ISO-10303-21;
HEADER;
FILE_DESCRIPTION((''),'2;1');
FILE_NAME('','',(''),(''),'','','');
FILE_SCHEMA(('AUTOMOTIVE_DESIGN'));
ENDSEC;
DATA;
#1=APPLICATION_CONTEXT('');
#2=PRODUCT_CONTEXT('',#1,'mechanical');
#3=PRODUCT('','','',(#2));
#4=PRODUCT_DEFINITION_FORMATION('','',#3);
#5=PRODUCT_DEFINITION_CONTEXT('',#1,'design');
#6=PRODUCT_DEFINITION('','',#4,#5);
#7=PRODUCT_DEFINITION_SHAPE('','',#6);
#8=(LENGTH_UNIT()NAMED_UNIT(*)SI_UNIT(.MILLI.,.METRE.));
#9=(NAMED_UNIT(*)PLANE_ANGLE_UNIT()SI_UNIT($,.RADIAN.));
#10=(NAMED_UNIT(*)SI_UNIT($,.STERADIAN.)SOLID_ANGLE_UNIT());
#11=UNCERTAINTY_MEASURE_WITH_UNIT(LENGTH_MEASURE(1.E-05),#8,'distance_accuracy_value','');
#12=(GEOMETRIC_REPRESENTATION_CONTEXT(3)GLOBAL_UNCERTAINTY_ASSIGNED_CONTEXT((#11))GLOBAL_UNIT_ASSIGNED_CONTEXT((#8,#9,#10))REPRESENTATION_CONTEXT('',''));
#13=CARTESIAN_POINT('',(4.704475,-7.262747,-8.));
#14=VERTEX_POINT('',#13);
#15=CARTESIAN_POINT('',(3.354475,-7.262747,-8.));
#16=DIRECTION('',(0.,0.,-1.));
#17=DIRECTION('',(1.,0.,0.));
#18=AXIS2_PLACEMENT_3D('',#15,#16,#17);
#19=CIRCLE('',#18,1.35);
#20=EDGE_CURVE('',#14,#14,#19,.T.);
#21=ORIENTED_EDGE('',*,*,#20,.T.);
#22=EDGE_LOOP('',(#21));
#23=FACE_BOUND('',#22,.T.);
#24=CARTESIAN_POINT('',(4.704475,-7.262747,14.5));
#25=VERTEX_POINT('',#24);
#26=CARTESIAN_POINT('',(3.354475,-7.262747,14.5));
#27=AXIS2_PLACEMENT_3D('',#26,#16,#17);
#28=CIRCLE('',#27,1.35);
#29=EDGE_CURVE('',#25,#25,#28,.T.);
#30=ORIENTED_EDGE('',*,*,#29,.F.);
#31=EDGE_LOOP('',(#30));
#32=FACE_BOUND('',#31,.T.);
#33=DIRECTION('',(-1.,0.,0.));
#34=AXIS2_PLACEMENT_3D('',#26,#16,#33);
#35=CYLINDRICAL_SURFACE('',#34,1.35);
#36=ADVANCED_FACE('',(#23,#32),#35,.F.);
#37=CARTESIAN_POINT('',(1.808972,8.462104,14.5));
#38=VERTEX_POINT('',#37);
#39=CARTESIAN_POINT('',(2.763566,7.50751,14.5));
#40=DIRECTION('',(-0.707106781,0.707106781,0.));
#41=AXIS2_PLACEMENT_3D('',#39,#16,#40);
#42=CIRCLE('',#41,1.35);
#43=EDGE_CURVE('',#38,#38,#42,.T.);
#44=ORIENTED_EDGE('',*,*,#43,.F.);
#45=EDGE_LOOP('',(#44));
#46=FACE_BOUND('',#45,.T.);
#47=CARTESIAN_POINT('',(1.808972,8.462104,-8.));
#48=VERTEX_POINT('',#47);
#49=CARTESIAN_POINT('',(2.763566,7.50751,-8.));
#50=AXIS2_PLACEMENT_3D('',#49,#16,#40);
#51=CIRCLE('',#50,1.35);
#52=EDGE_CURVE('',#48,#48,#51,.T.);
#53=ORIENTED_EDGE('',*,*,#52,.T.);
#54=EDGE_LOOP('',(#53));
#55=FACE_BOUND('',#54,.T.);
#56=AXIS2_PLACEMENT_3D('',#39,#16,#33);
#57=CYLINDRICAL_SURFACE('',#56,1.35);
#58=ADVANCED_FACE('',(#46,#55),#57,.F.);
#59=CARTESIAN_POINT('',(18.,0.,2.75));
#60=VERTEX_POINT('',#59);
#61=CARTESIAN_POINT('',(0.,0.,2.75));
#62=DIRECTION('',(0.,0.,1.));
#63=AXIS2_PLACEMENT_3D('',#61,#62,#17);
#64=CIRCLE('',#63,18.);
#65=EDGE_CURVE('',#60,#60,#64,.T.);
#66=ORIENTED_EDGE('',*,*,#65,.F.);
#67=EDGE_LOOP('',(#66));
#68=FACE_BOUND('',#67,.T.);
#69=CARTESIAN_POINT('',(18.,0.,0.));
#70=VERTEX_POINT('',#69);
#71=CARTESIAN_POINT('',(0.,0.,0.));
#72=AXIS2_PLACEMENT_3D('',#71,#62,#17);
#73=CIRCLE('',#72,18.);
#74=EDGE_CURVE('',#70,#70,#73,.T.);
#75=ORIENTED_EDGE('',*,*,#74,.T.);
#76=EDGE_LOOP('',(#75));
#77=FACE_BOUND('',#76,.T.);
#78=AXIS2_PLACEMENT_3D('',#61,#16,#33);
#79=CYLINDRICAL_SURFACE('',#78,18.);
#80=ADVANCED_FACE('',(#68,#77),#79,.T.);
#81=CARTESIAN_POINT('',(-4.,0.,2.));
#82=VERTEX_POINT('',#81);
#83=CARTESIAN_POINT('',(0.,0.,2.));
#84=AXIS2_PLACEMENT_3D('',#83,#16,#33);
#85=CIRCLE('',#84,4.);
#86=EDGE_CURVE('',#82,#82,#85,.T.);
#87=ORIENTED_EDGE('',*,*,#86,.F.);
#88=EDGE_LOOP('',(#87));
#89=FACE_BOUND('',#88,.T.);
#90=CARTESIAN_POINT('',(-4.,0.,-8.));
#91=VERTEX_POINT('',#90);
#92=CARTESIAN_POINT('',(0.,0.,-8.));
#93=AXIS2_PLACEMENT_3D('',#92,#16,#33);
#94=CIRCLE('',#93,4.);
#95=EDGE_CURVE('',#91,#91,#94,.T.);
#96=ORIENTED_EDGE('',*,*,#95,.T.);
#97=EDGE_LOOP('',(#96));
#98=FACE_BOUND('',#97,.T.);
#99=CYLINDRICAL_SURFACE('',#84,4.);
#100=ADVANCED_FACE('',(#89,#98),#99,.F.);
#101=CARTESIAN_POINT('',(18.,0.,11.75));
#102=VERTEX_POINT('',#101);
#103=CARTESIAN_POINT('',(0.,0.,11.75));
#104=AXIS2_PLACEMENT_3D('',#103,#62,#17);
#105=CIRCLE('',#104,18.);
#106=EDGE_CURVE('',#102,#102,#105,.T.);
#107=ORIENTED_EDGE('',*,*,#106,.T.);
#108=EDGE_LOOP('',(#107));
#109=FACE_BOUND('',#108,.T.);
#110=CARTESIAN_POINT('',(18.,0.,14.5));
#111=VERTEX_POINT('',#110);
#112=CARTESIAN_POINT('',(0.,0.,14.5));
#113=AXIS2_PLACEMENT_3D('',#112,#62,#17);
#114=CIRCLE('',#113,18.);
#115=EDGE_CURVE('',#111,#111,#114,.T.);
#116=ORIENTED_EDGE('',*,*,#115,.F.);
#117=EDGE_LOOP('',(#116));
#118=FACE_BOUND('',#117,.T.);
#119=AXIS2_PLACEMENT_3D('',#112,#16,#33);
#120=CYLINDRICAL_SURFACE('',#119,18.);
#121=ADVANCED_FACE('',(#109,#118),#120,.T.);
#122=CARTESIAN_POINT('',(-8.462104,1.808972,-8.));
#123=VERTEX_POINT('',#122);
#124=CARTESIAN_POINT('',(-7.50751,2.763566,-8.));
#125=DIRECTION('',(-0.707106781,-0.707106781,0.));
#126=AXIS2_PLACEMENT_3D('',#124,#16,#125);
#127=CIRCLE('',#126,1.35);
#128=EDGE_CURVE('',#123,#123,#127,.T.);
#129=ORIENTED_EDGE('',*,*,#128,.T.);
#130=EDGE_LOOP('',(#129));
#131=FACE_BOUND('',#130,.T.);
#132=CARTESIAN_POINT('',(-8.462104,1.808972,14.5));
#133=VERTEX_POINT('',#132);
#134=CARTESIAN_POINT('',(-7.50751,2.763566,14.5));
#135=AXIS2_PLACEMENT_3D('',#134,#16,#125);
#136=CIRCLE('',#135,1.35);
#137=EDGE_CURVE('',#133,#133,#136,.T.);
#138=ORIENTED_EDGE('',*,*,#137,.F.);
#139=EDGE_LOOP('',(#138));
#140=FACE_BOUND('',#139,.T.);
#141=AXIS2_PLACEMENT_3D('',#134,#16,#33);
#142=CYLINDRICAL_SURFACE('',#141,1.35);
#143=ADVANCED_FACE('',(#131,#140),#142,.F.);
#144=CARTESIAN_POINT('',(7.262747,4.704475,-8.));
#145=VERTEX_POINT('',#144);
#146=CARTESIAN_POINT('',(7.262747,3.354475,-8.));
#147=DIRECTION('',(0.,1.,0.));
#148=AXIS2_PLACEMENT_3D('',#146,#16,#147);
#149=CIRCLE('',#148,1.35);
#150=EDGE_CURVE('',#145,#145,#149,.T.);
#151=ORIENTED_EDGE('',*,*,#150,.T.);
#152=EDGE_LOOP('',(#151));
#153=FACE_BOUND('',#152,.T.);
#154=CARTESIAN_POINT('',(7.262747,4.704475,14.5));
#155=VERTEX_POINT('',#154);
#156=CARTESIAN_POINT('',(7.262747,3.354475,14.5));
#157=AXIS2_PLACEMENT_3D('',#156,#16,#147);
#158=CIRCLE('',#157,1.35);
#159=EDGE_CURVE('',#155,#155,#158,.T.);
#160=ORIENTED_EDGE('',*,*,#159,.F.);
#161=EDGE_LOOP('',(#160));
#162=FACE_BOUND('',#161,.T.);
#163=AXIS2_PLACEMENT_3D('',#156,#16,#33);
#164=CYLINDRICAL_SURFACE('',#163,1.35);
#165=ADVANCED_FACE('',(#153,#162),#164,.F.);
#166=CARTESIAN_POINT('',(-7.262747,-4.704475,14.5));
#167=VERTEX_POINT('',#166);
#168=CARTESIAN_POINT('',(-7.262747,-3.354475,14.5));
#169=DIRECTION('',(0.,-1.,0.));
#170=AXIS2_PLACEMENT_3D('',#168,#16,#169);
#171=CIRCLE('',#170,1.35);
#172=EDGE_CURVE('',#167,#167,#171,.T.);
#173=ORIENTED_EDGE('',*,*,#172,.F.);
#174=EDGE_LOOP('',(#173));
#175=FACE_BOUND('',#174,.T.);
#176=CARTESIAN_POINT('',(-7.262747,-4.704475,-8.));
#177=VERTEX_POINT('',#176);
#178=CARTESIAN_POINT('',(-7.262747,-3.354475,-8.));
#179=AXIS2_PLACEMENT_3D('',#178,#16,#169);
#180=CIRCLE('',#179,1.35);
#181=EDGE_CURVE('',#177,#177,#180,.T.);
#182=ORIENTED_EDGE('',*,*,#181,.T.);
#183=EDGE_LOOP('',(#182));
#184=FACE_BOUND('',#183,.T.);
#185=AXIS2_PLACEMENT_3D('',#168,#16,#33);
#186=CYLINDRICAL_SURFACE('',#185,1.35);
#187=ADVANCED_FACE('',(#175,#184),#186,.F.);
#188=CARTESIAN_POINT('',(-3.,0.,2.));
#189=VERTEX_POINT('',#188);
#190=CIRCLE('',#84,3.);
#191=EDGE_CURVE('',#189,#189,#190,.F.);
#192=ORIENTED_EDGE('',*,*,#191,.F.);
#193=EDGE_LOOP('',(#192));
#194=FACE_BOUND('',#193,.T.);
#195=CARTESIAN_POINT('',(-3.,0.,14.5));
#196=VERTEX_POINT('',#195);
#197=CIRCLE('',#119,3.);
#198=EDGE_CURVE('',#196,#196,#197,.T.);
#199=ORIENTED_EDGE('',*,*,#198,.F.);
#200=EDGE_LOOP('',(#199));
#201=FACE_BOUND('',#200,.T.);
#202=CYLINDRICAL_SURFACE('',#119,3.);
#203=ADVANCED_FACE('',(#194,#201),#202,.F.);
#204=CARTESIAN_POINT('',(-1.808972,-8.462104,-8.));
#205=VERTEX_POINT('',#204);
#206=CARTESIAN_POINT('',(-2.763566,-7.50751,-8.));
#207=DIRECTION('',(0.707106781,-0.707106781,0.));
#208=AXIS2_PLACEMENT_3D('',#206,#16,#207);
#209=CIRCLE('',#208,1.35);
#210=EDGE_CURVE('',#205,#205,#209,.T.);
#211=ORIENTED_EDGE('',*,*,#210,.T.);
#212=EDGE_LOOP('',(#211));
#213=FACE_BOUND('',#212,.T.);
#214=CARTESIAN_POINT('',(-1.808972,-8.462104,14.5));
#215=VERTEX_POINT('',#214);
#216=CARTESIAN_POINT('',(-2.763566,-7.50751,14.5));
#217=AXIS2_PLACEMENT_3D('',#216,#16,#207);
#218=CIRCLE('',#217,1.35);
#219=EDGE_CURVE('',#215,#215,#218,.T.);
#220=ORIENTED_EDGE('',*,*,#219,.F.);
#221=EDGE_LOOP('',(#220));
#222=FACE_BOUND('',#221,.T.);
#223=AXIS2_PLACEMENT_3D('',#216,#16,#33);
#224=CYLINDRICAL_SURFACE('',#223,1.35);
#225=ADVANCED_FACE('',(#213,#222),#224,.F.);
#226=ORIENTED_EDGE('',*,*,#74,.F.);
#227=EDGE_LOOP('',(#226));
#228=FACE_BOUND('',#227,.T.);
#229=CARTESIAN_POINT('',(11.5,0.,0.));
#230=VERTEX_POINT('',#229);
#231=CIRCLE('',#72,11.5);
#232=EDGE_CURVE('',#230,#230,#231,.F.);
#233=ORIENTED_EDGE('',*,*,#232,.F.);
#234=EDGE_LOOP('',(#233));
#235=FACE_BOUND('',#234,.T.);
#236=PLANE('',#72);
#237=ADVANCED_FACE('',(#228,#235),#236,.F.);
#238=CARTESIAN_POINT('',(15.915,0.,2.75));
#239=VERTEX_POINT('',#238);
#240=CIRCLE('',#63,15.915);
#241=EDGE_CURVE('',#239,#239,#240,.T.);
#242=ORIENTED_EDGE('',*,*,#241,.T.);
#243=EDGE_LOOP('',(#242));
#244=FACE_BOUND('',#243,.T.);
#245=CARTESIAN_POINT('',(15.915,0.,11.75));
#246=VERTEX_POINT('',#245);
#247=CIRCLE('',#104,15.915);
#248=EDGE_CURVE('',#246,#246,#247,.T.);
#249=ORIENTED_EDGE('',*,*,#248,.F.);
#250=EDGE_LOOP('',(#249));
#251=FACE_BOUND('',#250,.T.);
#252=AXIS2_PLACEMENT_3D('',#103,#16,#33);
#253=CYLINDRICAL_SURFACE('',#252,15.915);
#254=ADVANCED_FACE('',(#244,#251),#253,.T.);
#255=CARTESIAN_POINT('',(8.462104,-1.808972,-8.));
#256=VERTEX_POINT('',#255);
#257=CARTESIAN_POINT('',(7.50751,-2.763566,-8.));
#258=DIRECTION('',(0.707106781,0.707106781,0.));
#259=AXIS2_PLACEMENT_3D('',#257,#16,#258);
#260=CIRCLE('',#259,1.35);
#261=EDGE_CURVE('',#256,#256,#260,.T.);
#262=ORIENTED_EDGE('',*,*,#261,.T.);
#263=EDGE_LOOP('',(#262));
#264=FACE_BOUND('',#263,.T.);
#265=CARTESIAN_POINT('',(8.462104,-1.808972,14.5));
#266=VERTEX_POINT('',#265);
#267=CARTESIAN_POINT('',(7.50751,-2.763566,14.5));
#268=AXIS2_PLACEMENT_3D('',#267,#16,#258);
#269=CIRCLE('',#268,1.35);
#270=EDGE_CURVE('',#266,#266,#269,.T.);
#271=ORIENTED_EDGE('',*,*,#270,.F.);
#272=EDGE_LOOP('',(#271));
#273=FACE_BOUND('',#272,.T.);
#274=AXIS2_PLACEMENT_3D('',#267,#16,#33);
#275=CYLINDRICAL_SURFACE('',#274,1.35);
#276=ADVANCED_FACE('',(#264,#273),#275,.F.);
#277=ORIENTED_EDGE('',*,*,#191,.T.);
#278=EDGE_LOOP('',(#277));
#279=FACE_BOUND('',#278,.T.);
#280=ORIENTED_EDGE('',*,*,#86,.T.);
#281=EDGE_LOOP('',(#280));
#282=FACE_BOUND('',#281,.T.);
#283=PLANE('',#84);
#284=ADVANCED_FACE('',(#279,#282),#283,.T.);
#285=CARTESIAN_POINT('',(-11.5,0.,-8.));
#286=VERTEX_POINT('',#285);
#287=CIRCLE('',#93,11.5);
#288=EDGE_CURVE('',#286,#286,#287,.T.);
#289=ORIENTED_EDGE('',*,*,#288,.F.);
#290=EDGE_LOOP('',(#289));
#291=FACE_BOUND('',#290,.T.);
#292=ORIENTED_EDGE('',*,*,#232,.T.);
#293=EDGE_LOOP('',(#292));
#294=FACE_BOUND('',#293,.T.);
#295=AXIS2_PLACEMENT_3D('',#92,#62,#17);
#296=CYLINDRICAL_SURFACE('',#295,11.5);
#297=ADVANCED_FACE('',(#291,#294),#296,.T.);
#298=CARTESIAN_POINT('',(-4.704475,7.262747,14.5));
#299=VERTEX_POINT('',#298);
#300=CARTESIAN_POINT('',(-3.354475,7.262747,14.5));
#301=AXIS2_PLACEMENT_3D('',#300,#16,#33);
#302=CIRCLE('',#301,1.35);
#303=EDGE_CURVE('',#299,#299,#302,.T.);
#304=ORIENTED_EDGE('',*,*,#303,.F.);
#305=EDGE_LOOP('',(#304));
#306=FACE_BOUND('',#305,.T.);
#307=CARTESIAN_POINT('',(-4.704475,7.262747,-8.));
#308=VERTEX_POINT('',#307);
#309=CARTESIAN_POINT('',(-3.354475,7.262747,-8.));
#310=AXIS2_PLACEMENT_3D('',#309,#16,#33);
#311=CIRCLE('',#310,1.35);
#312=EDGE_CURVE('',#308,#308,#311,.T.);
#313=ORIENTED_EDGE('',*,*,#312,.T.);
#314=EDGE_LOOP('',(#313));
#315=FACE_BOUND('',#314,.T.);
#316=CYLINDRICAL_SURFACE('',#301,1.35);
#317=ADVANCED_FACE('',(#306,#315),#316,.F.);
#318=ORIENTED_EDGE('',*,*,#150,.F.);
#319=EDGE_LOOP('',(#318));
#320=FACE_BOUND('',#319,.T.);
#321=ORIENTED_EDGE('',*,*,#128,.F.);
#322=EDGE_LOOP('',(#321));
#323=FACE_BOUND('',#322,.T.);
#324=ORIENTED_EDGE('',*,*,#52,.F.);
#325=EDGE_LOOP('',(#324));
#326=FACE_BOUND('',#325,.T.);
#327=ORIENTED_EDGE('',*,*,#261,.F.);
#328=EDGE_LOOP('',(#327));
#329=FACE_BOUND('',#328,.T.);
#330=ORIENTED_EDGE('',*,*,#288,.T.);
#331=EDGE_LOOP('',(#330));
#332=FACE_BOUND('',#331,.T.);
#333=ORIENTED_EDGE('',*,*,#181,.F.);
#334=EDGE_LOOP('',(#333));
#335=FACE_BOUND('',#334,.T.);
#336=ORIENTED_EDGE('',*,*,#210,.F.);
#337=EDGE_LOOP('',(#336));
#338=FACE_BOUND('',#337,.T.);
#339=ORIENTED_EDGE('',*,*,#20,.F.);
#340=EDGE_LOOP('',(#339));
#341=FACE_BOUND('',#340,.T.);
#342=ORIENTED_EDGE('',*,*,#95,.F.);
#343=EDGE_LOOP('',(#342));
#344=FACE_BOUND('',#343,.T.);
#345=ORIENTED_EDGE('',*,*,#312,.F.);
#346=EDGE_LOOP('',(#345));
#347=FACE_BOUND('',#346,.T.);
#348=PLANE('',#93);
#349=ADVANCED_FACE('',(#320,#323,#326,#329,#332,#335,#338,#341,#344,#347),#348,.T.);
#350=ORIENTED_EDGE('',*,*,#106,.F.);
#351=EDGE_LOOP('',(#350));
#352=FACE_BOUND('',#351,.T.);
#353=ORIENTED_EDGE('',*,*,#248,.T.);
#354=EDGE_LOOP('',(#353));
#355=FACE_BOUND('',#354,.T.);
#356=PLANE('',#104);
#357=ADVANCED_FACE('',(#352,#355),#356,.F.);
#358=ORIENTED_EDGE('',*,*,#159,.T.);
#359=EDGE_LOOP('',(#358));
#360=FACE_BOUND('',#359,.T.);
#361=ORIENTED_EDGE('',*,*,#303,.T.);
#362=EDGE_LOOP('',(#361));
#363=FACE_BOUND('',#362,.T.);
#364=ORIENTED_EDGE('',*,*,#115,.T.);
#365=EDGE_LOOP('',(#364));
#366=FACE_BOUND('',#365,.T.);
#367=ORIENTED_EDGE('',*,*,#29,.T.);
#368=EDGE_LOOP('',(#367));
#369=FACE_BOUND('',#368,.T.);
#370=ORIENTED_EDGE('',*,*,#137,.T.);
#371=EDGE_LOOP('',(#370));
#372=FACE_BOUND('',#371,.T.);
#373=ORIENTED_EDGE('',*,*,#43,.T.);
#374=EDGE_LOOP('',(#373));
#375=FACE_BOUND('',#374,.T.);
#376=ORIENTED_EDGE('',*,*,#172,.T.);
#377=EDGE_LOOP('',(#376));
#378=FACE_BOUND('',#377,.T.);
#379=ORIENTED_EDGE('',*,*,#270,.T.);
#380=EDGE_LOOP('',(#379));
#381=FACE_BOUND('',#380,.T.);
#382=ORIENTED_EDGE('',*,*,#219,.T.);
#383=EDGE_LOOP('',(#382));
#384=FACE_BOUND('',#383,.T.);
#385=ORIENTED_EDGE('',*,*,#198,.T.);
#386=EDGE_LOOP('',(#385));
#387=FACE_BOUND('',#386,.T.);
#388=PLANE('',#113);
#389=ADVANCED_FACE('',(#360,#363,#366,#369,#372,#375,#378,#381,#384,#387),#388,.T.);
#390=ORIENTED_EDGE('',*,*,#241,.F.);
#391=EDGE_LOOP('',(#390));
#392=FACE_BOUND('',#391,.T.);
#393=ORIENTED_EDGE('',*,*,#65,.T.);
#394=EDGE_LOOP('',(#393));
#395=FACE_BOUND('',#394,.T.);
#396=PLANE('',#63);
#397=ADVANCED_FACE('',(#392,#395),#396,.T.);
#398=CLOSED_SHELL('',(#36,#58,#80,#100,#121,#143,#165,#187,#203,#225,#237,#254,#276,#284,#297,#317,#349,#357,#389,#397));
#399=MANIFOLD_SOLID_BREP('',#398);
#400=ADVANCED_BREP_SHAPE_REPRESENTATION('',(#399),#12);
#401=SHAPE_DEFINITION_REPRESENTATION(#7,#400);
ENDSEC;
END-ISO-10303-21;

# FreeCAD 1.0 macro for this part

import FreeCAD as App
import Part
import Sketcher

V = App.Vector

doc = App.newDocument("Part")
params = doc.addObject("Spreadsheet::Sheet", "Params")
for row, (alias, value) in enumerate([
    ("sketch1_diameter", "36 mm"),
    ("pad1_length", "2.75 mm"),
    ("sketch2_diameter", "31.83 mm"),
    ("pad2_length", "9 mm"),
    ("sketch3_diameter", "36 mm"),
    ("pad3_length", "2.75 mm"),
    ("sketch4_diameter", "23 mm"),
    ("pad4_length", "8 mm"),
    ("sketch5_diameter", "6 mm"),
    ("sketch6_diameter", "8 mm"),
    ("pocket2_length", "10 mm"),
    ("sketch7_diameter", "2.7 mm"),
], start=1):
    params.set(f"A{row}", alias)
    params.set(f"B{row}", "=" + value)
    params.setAlias(f"B{row}", alias)

body = doc.addObject("PartDesign::Body", "Body")

# Sketch on XY plane
sketch1 = body.newObject("Sketcher::SketchObject", "Sketch")
sketch1.AttachmentSupport = (doc.getObject("XY_Plane"), [""])
sketch1.MapMode = "FlatFace"
sketch1.addGeometry(Part.Circle(V(0, 0, 0), V(0, 0, 1), 18), False)
sketch1.addConstraint([
    Sketcher.Constraint("Coincident", 0, 3, -1, 1),
    Sketcher.Constraint("Diameter", 0, 36.0),
])
sketch1.setExpression("Constraints[1]", "Params.sketch1_diameter")
pad1 = body.newObject("PartDesign::Pad", "Pad")
pad1.Profile = sketch1
pad1.setExpression("Length", "Params.pad1_length")

# Sketch on XY plane
sketch2 = body.newObject("Sketcher::SketchObject", "Sketch001")
sketch2.AttachmentSupport = (doc.getObject("XY_Plane"), [""])
sketch2.MapMode = "FlatFace"
sketch2.AttachmentOffset = App.Placement(V(0, 0, 2.75), App.Rotation())
sketch2.addGeometry(Part.Circle(V(0, 0, 0), V(0, 0, 1), 16), False)
sketch2.addConstraint([
    Sketcher.Constraint("Coincident", 0, 3, -1, 1),
    Sketcher.Constraint("Diameter", 0, 31.83),
])
sketch2.setExpression("Constraints[1]", "Params.sketch2_diameter")
pad2 = body.newObject("PartDesign::Pad", "Pad001")
pad2.Profile = sketch2
pad2.setExpression("Length", "Params.pad2_length")

# Sketch on XY plane
sketch3 = body.newObject("Sketcher::SketchObject", "Sketch002")
sketch3.AttachmentSupport = (doc.getObject("XY_Plane"), [""])
sketch3.MapMode = "FlatFace"
sketch3.AttachmentOffset = App.Placement(V(0, 0, 11.75), App.Rotation())
sketch3.addGeometry(Part.Circle(V(0, 0, 0), V(0, 0, 1), 18), False)
sketch3.addConstraint([
    Sketcher.Constraint("Coincident", 0, 3, -1, 1),
    Sketcher.Constraint("Diameter", 0, 36.0),
])
sketch3.setExpression("Constraints[1]", "Params.sketch3_diameter")
pad3 = body.newObject("PartDesign::Pad", "Pad002")
pad3.Profile = sketch3
pad3.setExpression("Length", "Params.pad3_length")

# Sketch on XY plane
sketch4 = body.newObject("Sketcher::SketchObject", "Sketch003")
sketch4.AttachmentSupport = (doc.getObject("XY_Plane"), [""])
sketch4.MapMode = "FlatFace"
sketch4.addGeometry(Part.Circle(V(0, 0, 0), V(0, 0, 1), 12), False)
sketch4.addConstraint([
    Sketcher.Constraint("Coincident", 0, 3, -1, 1),
    Sketcher.Constraint("Diameter", 0, 23.0),
])
sketch4.setExpression("Constraints[1]", "Params.sketch4_diameter")
pad4 = body.newObject("PartDesign::Pad", "Pad003")
pad4.Profile = sketch4
pad4.setExpression("Length", "Params.pad4_length")
pad4.Reversed = True

# Sketch on XY plane
sketch5 = body.newObject("Sketcher::SketchObject", "Sketch004")
sketch5.AttachmentSupport = (doc.getObject("XY_Plane"), [""])
sketch5.MapMode = "FlatFace"
sketch5.AttachmentOffset = App.Placement(V(0, 0, -8), App.Rotation())
sketch5.addGeometry(Part.Circle(V(0, 0, 0), V(0, 0, 1), 3), False)
sketch5.addConstraint([
    Sketcher.Constraint("Coincident", 0, 3, -1, 1),
    Sketcher.Constraint("Diameter", 0, 6.0),
])
sketch5.setExpression("Constraints[1]", "Params.sketch5_diameter")
pocket1 = body.newObject("PartDesign::Pocket", "Pocket")
pocket1.Profile = sketch5
pocket1.Type = "ThroughAll"
pocket1.Reversed = True

# Sketch on XY plane
sketch6 = body.newObject("Sketcher::SketchObject", "Sketch005")
sketch6.AttachmentSupport = (doc.getObject("XY_Plane"), [""])
sketch6.MapMode = "FlatFace"
sketch6.AttachmentOffset = App.Placement(V(0, 0, -8), App.Rotation())
sketch6.addGeometry(Part.Circle(V(0, 0, 0), V(0, 0, 1), 4), False)
sketch6.addConstraint([
    Sketcher.Constraint("Coincident", 0, 3, -1, 1),
    Sketcher.Constraint("Diameter", 0, 8.0),
])
sketch6.setExpression("Constraints[1]", "Params.sketch6_diameter")
pocket2 = body.newObject("PartDesign::Pocket", "Pocket001")
pocket2.Profile = sketch6
pocket2.setExpression("Length", "Params.pocket2_length")
pocket2.Reversed = True

# Sketch on XY plane
sketch7 = body.newObject("Sketcher::SketchObject", "Sketch006")
sketch7.AttachmentSupport = (doc.getObject("XY_Plane"), [""])
sketch7.MapMode = "FlatFace"
sketch7.AttachmentOffset = App.Placement(V(0, 0, -8), App.Rotation())
sketch7.addGeometry(Part.Circle(V(-3.4, 7.3, 0), V(0, 0, 1), 1.4), False)
sketch7.addConstraint([
    Sketcher.Constraint("Diameter", 0, 2.7),
    Sketcher.Constraint("DistanceX", 0, 3, -1, 1, 3.354475),
    Sketcher.Constraint("DistanceY", -1, 1, 0, 3, 7.262747),
])
sketch7.setExpression("Constraints[0]", "Params.sketch7_diameter")
pocket3 = body.newObject("PartDesign::Pocket", "Pocket002")
pocket3.Profile = sketch7
pocket3.Type = "ThroughAll"
pocket3.Reversed = True
doc.recompute()

polarpattern = body.newObject("PartDesign::PolarPattern", "PolarPattern")
polarpattern.Originals = [pocket3]
polarpattern.Axis = (doc.getObject("Z_Axis"), [""])
polarpattern.Angle = 360
polarpattern.Occurrences = 8
body.Tip = polarpattern

doc.recompute()
